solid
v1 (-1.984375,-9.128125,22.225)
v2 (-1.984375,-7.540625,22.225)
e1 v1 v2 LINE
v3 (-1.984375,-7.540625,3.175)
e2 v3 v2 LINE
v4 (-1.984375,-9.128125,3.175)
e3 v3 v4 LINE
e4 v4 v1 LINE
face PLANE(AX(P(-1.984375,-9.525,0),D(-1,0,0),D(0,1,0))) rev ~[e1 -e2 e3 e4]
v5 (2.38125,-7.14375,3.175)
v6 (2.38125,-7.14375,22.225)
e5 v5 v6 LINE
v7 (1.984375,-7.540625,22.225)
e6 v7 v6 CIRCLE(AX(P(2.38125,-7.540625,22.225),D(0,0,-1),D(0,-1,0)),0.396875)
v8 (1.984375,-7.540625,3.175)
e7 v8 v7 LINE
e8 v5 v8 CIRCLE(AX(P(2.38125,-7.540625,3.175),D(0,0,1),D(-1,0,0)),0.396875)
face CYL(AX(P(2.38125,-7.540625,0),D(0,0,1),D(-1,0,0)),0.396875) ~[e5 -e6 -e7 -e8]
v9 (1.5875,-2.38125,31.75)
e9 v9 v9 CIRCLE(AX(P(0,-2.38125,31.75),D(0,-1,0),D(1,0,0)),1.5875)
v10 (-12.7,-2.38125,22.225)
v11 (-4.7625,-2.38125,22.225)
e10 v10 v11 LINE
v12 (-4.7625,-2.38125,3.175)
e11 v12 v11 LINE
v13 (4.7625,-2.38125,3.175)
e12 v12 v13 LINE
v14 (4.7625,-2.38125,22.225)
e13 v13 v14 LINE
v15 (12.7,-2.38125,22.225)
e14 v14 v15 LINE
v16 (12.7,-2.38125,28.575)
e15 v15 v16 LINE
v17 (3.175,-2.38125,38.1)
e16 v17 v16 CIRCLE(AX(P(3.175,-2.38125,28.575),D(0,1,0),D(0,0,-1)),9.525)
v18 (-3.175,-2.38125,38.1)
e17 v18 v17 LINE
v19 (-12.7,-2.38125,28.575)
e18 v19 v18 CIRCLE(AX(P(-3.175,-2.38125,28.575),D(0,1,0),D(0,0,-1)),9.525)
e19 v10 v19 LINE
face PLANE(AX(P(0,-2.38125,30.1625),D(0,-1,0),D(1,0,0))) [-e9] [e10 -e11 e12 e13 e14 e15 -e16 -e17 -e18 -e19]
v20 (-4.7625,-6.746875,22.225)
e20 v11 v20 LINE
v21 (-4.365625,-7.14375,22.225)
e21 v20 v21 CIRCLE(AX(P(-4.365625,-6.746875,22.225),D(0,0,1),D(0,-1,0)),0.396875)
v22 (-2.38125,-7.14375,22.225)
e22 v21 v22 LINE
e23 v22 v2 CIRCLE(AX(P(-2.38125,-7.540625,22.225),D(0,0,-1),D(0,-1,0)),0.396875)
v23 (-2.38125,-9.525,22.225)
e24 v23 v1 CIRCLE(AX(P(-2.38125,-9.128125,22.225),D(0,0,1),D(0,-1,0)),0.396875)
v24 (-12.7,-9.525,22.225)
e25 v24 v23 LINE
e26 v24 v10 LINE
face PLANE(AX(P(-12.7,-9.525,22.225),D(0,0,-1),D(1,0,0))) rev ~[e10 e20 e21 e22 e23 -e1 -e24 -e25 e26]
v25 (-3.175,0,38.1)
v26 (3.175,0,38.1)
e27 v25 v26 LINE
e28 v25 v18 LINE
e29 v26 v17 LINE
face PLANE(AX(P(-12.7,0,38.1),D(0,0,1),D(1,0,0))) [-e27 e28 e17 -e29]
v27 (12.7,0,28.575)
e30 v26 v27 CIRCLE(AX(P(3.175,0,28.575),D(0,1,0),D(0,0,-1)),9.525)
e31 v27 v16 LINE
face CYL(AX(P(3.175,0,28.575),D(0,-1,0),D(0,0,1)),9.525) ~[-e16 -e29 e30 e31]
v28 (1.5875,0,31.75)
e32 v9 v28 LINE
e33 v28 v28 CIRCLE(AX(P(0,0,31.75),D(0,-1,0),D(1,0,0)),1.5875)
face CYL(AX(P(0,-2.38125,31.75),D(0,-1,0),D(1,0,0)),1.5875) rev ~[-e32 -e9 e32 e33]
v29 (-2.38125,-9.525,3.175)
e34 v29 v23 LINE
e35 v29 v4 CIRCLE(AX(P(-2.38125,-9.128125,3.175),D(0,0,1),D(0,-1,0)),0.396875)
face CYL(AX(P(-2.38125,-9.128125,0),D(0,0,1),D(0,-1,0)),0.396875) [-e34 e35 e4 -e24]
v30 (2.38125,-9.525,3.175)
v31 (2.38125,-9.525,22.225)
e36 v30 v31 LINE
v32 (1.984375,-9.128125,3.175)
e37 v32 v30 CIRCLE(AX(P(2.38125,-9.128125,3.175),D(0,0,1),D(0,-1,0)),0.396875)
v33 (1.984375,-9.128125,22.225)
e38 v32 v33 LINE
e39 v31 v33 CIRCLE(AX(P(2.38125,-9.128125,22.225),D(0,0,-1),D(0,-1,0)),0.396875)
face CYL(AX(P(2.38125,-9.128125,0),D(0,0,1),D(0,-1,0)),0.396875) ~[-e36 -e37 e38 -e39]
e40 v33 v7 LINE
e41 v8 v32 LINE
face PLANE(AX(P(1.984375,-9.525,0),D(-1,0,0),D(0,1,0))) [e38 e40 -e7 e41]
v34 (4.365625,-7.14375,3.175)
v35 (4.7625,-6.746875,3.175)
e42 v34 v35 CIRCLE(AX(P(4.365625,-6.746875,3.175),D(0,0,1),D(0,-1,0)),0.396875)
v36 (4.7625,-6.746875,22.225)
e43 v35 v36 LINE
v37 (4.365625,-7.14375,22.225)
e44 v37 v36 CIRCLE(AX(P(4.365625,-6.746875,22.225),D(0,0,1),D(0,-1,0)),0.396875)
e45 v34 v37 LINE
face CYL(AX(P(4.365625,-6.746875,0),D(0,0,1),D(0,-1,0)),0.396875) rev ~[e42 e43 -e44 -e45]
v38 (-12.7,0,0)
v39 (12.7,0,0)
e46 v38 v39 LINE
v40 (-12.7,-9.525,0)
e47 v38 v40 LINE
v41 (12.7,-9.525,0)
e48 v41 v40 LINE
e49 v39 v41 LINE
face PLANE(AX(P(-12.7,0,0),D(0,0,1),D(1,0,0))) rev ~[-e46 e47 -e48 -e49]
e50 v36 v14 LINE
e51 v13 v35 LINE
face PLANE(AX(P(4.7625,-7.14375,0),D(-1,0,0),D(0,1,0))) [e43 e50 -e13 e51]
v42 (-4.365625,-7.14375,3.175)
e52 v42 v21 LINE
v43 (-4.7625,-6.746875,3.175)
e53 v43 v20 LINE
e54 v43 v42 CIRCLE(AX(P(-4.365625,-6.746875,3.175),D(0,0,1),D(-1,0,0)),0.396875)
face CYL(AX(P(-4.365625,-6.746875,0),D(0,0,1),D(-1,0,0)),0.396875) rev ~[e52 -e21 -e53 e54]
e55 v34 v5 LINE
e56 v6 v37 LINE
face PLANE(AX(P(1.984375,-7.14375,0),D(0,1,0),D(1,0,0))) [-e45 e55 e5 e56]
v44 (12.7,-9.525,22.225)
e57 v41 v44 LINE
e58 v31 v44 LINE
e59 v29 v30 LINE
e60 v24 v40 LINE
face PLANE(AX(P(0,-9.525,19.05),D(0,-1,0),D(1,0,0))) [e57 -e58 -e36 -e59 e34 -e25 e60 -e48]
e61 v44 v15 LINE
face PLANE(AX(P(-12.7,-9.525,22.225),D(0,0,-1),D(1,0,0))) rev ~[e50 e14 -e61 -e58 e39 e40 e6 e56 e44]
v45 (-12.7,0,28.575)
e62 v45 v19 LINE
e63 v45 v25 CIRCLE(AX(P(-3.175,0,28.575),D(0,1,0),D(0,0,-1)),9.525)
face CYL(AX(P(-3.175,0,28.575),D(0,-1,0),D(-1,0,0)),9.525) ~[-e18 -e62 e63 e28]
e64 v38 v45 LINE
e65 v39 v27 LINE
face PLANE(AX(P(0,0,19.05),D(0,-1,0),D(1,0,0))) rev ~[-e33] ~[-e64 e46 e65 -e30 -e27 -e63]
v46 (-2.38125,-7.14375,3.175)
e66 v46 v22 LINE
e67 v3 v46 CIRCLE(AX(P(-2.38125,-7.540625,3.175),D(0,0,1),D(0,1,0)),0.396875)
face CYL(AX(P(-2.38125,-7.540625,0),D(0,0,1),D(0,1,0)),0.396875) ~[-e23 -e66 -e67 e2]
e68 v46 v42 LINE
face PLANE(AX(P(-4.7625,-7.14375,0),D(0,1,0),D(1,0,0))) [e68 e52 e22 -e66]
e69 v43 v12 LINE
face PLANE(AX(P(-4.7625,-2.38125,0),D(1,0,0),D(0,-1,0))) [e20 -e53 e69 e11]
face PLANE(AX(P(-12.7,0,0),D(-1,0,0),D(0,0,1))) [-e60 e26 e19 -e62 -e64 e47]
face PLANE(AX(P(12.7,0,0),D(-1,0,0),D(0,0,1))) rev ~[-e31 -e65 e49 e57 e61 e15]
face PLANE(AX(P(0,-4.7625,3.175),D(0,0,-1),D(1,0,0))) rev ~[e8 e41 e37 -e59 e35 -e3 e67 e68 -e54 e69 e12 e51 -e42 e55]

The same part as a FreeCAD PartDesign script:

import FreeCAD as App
import Part
import Sketcher
from FreeCAD import Vector
Q = App.Units.Quantity


def edges_at(feature, points):
    """Names of the edges that pass closest to the given points."""
    edges = feature.Shape.Edges
    near = lambda p: min(range(len(edges)), key=lambda i: edges[i].distToShape(Part.Vertex(*p))[0])
    return sorted({f"Edge{near(p) + 1}" for p in points})

doc = App.newDocument("Part")
body = doc.addObject("PartDesign::Body", "Body")

# Sketch on XZ plane
sketch1 = body.newObject("Sketcher::SketchObject", "Sketch")
sketch1.AttachmentSupport = (doc.getObject("XZ_Plane"), [""])
sketch1.MapMode = "FlatFace"
sketch1.addGeometry(Part.LineSegment(Vector(-13, 38, 0), Vector(-13, 0, 0)), False)
sketch1.addGeometry(Part.LineSegment(Vector(-13, 0, 0), Vector(13, 0, 0)), False)
sketch1.addGeometry(Part.LineSegment(Vector(13, 0, 0), Vector(13, 38, 0)), False)
sketch1.addGeometry(Part.LineSegment(Vector(13, 38, 0), Vector(-13, 38, 0)), False)
sketch1.addConstraint(Sketcher.Constraint("Coincident", 0, 2, 1, 1))
sketch1.addConstraint(Sketcher.Constraint("Coincident", 1, 2, 2, 1))
sketch1.addConstraint(Sketcher.Constraint("Coincident", 2, 2, 3, 1))
sketch1.addConstraint(Sketcher.Constraint("Coincident", 3, 2, 0, 1))
sketch1.addConstraint(Sketcher.Constraint("Vertical", 0))
sketch1.addConstraint(Sketcher.Constraint("Horizontal", 1))
sketch1.addConstraint(Sketcher.Constraint("Vertical", 2))
sketch1.addConstraint(Sketcher.Constraint("Horizontal", 3))
sketch1.addConstraint(Sketcher.Constraint("Symmetric", 0, 2, 1, 2, -1, 1))
sketch1.addConstraint(Sketcher.Constraint("DistanceX", 1, 1, 1, 2, Q("1 in")))
sketch1.addConstraint(Sketcher.Constraint("DistanceY", 0, 2, 0, 1, Q("1.5 in")))
pad1 = body.newObject("PartDesign::Pad", "Pad")
pad1.Profile = sketch1
pad1.Length = Q("0.375 in")

# Sketch on XY plane
sketch2 = body.newObject("Sketcher::SketchObject", "Sketch001")
sketch2.AttachmentSupport = (doc.getObject("XY_Plane"), [""])
sketch2.MapMode = "FlatFace"
sketch2.addGeometry(Part.LineSegment(Vector(4.8, -2.4, 0), Vector(-4.8, -2.4, 0)), False)
sketch2.addGeometry(Part.LineSegment(Vector(-4.8, -2.4, 0), Vector(-4.8, -7.1, 0)), False)
sketch2.addGeometry(Part.LineSegment(Vector(-4.8, -7.1, 0), Vector(-2, -7.1, 0)), False)
sketch2.addGeometry(Part.LineSegment(Vector(-2, -7.1, 0), Vector(-2, -9.5, 0)), False)
sketch2.addGeometry(Part.LineSegment(Vector(-2, -9.5, 0), Vector(2, -9.5, 0)), False)
sketch2.addGeometry(Part.LineSegment(Vector(2, -9.5, 0), Vector(2, -7.1, 0)), False)
sketch2.addGeometry(Part.LineSegment(Vector(2, -7.1, 0), Vector(4.8, -7.1, 0)), False)
sketch2.addGeometry(Part.LineSegment(Vector(4.8, -7.1, 0), Vector(4.8, -2.4, 0)), False)
sketch2.addConstraint(Sketcher.Constraint("Coincident", 0, 2, 1, 1))
sketch2.addConstraint(Sketcher.Constraint("Coincident", 1, 2, 2, 1))
sketch2.addConstraint(Sketcher.Constraint("Coincident", 2, 2, 3, 1))
sketch2.addConstraint(Sketcher.Constraint("Coincident", 3, 2, 4, 1))
sketch2.addConstraint(Sketcher.Constraint("Coincident", 4, 2, 5, 1))
sketch2.addConstraint(Sketcher.Constraint("Coincident", 5, 2, 6, 1))
sketch2.addConstraint(Sketcher.Constraint("Coincident", 6, 2, 7, 1))
sketch2.addConstraint(Sketcher.Constraint("Coincident", 7, 2, 0, 1))
sketch2.addConstraint(Sketcher.Constraint("Horizontal", 0))
sketch2.addConstraint(Sketcher.Constraint("Vertical", 1))
sketch2.addConstraint(Sketcher.Constraint("Horizontal", 2))
sketch2.addConstraint(Sketcher.Constraint("Vertical", 3))
sketch2.addConstraint(Sketcher.Constraint("Horizontal", 4))
sketch2.addConstraint(Sketcher.Constraint("Vertical", 5))
sketch2.addConstraint(Sketcher.Constraint("Horizontal", 6))
sketch2.addConstraint(Sketcher.Constraint("Vertical", 7))
sketch2.addConstraint(Sketcher.Constraint("Symmetric", 2, 2, 5, 2, -2))
sketch2.addConstraint(Sketcher.Constraint("Equal", 2, 6))
sketch2.addConstraint(Sketcher.Constraint("DistanceX", 0, 2, 0, 1, Q("0.375 in")))
sketch2.addConstraint(Sketcher.Constraint("DistanceX", 2, 1, 2, 2, Q("0.109375 in")))
sketch2.addConstraint(Sketcher.Constraint("DistanceY", 1, 2, 1, 1, Q("0.1875 in")))
sketch2.addConstraint(Sketcher.Constraint("DistanceY", 3, 2, 3, 1, Q("0.09375 in")))
sketch2.addConstraint(Sketcher.Constraint("DistanceY", 0, 2, -1, 1, Q("0.09375 in")))
pocket1 = body.newObject("PartDesign::Pocket", "Pocket")
pocket1.Profile = sketch2
pocket1.Length = Q("0.875 in")
pocket1.Reversed = True

# Sketch on XZ plane
sketch3 = body.newObject("Sketcher::SketchObject", "Sketch002")
sketch3.AttachmentSupport = (doc.getObject("XZ_Plane"), [""])
sketch3.MapMode = "FlatFace"
sketch3.AttachmentOffset = App.Placement(Vector(0, 0, 0.375 * 25.4), App.Rotation())
sketch3.addGeometry(Part.LineSegment(Vector(-13, 38, 0), Vector(-13, 22, 0)), False)
sketch3.addGeometry(Part.LineSegment(Vector(-13, 22, 0), Vector(13, 22, 0)), False)
sketch3.addGeometry(Part.LineSegment(Vector(13, 22, 0), Vector(13, 38, 0)), False)
sketch3.addGeometry(Part.LineSegment(Vector(13, 38, 0), Vector(-13, 38, 0)), False)
sketch3.addConstraint(Sketcher.Constraint("Coincident", 0, 2, 1, 1))
sketch3.addConstraint(Sketcher.Constraint("Coincident", 1, 2, 2, 1))
sketch3.addConstraint(Sketcher.Constraint("Coincident", 2, 2, 3, 1))
sketch3.addConstraint(Sketcher.Constraint("Coincident", 3, 2, 0, 1))
sketch3.addConstraint(Sketcher.Constraint("Vertical", 0))
sketch3.addConstraint(Sketcher.Constraint("Horizontal", 1))
sketch3.addConstraint(Sketcher.Constraint("Vertical", 2))
sketch3.addConstraint(Sketcher.Constraint("Horizontal", 3))
sketch3.addConstraint(Sketcher.Constraint("DistanceX", 1, 1, 1, 2, Q("1 in")))
sketch3.addConstraint(Sketcher.Constraint("DistanceX", 0, 2, -1, 1, Q("0.5 in")))
sketch3.addConstraint(Sketcher.Constraint("DistanceY", -1, 1, 2, 2, Q("1.5 in")))
sketch3.addConstraint(Sketcher.Constraint("DistanceY", 0, 2, 0, 1, Q("0.625 in")))
pocket2 = body.newObject("PartDesign::Pocket", "Pocket001")
pocket2.Profile = sketch3
pocket2.Length = Q("0.28125 in")
doc.recompute()

fillet = body.newObject("PartDesign::Fillet", "Fillet")
fillet.Base = (pocket2, edges_at(pocket2, [(12.7, -1.191, 38.1), (-12.7, -1.191, 38.1)]))
fillet.Radius = Q("0.375 in")
doc.recompute()

fillet2 = body.newObject("PartDesign::Fillet", "Fillet001")
fillet2.Base = (fillet, edges_at(fillet, [
    (-4.763, -7.144, 11.113),
    (4.763, -7.144, 11.113),
    (1.984, -7.144, 11.113),
    (1.984, -9.525, 11.113),
    (-1.984, -7.144, 11.113),
    (-1.984, -9.525, 11.113),
]))
fillet2.Radius = Q("0.015625 in")

# Sketch on XY plane
sketch4 = body.newObject("Sketcher::SketchObject", "Sketch003")
sketch4.AttachmentSupport = (doc.getObject("XY_Plane"), [""])
sketch4.MapMode = "FlatFace"
sketch4.addGeometry(Part.LineSegment(Vector(-13, -10, 0), Vector(-13, 0, 0)), False)
sketch4.addGeometry(Part.LineSegment(Vector(-13, 0, 0), Vector(13, 0, 0)), False)
sketch4.addGeometry(Part.LineSegment(Vector(13, 0, 0), Vector(13, -10, 0)), False)
sketch4.addGeometry(Part.LineSegment(Vector(13, -10, 0), Vector(-13, -10, 0)), False)
sketch4.addConstraint(Sketcher.Constraint("Coincident", 0, 2, 1, 1))
sketch4.addConstraint(Sketcher.Constraint("Coincident", 1, 2, 2, 1))
sketch4.addConstraint(Sketcher.Constraint("Coincident", 2, 2, 3, 1))
sketch4.addConstraint(Sketcher.Constraint("Coincident", 3, 2, 0, 1))
sketch4.addConstraint(Sketcher.Constraint("Vertical", 0))
sketch4.addConstraint(Sketcher.Constraint("Horizontal", 1))
sketch4.addConstraint(Sketcher.Constraint("Vertical", 2))
sketch4.addConstraint(Sketcher.Constraint("Horizontal", 3))
sketch4.addConstraint(Sketcher.Constraint("Symmetric", 0, 2, 1, 2, -1, 1))
sketch4.addConstraint(Sketcher.Constraint("DistanceX", 1, 1, 1, 2, Q("1 in")))
sketch4.addConstraint(Sketcher.Constraint("DistanceY", 0, 1, 0, 2, Q("0.375 in")))
pad2 = body.newObject("PartDesign::Pad", "Pad001")
pad2.Profile = sketch4
pad2.Length = Q("0.125 in")

# Sketch on XZ plane
sketch5 = body.newObject("Sketcher::SketchObject", "Sketch004")
sketch5.AttachmentSupport = (doc.getObject("XZ_Plane"), [""])
sketch5.MapMode = "FlatFace"
sketch5.AttachmentOffset = App.Placement(Vector(0, 0, 0.09375 * 25.4), App.Rotation())
sketch5.addGeometry(Part.Circle(Vector(0, 31.8, 0), Vector(0, 0, 1), 1.6), False)
sketch5.addConstraint(Sketcher.Constraint("PointOnObject", 0, 3, -2))
sketch5.addConstraint(Sketcher.Constraint("Diameter", 0, Q("0.125 in")))
sketch5.addConstraint(Sketcher.Constraint("DistanceY", -1, 1, 0, 3, Q("1.25 in")))
pocket3 = body.newObject("PartDesign::Pocket", "Pocket002")
pocket3.Profile = sketch5
pocket3.Type = "ThroughAll"

doc.recompute()
